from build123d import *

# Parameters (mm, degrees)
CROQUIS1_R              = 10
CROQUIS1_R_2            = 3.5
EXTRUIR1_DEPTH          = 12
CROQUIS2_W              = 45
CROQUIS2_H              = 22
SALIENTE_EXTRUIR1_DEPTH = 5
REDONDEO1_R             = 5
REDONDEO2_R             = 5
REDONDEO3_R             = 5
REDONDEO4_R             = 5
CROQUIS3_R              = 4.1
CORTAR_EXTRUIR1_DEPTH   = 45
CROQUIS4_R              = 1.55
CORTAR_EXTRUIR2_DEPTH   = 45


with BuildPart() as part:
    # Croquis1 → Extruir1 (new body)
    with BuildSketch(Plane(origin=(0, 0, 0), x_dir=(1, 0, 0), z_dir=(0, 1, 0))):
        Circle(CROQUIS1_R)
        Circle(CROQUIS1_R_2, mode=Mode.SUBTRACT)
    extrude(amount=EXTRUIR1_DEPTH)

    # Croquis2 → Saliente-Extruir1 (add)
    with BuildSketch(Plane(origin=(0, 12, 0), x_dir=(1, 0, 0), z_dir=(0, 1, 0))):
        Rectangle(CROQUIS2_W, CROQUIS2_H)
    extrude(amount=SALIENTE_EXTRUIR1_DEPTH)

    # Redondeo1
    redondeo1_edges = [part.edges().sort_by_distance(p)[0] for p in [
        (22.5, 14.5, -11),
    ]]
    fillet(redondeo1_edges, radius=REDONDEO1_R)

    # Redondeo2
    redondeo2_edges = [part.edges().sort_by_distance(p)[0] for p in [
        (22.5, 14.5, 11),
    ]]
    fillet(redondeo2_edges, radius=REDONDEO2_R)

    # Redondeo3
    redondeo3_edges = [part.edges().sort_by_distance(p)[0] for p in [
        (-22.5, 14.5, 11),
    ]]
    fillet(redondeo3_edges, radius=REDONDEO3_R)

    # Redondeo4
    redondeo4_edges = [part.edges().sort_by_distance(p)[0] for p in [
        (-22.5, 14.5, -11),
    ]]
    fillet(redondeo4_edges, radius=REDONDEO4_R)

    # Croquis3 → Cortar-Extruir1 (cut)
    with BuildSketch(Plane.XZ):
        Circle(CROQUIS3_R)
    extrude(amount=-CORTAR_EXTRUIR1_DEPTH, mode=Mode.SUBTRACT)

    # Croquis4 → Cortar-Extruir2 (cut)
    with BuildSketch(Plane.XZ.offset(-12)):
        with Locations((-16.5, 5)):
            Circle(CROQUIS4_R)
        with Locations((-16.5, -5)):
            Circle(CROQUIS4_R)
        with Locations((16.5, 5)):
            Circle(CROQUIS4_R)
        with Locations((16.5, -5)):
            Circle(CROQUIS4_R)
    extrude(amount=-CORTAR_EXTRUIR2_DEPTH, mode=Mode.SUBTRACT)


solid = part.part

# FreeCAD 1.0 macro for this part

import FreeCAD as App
import Part
import Sketcher
from FreeCAD import Vector
Q = App.Units.Quantity


def edges_at(feature, points):
    """Names of the edges that pass closest to the given points."""
    edges = feature.Shape.Edges
    near = lambda p: min(range(len(edges)), key=lambda i: edges[i].distToShape(Part.Vertex(*p))[0])
    return sorted({f"Edge{near(p) + 1}" for p in points})

doc = App.newDocument("Part")
body = doc.addObject("PartDesign::Body", "Body")

# Sketch on XZ plane
sketch1 = body.newObject("Sketcher::SketchObject", "Sketch")
sketch1.AttachmentSupport = (doc.getObject("XZ_Plane"), [""])
sketch1.MapMode = "FlatFace"
sketch1.addGeometry(Part.Circle(Vector(0, 0, 0), Vector(0, 0, 1), 10), False)
sketch1.addGeometry(Part.Circle(Vector(0, 0, 0), Vector(0, 0, 1), 3.5), False)
sketch1.addConstraint(Sketcher.Constraint("Coincident", 0, 3, -1, 1))
sketch1.addConstraint(Sketcher.Constraint("Coincident", 1, 3, -1, 1))
sketch1.addConstraint(Sketcher.Constraint("Diameter", 0, Q("20 mm")))
sketch1.addConstraint(Sketcher.Constraint("Diameter", 1, Q("7 mm")))
pad1 = body.newObject("PartDesign::Pad", "Pad")
pad1.Profile = sketch1
pad1.Length = 12
pad1.Reversed = True

# Sketch on XZ plane
sketch2 = body.newObject("Sketcher::SketchObject", "Sketch001")
sketch2.AttachmentSupport = (doc.getObject("XZ_Plane"), [""])
sketch2.MapMode = "FlatFace"
sketch2.AttachmentOffset = App.Placement(Vector(0, 0, -12), App.Rotation())
sketch2.addGeometry(Part.LineSegment(Vector(-22, -11, 0), Vector(-22, 11, 0)), False)
sketch2.addGeometry(Part.LineSegment(Vector(-22, 11, 0), Vector(22, 11, 0)), False)
sketch2.addGeometry(Part.LineSegment(Vector(22, 11, 0), Vector(22, -11, 0)), False)
sketch2.addGeometry(Part.LineSegment(Vector(22, -11, 0), Vector(-22, -11, 0)), False)
sketch2.addConstraint(Sketcher.Constraint("Coincident", 0, 2, 1, 1))
sketch2.addConstraint(Sketcher.Constraint("Coincident", 1, 2, 2, 1))
sketch2.addConstraint(Sketcher.Constraint("Coincident", 2, 2, 3, 1))
sketch2.addConstraint(Sketcher.Constraint("Coincident", 3, 2, 0, 1))
sketch2.addConstraint(Sketcher.Constraint("Vertical", 0))
sketch2.addConstraint(Sketcher.Constraint("Horizontal", 1))
sketch2.addConstraint(Sketcher.Constraint("Vertical", 2))
sketch2.addConstraint(Sketcher.Constraint("Horizontal", 3))
sketch2.addConstraint(Sketcher.Constraint("Symmetric", 0, 2, 2, 2, -1, 1))
sketch2.addConstraint(Sketcher.Constraint("DistanceX", 1, 1, 1, 2, Q("45 mm")))
sketch2.addConstraint(Sketcher.Constraint("DistanceY", 0, 1, 0, 2, Q("22 mm")))
pad2 = body.newObject("PartDesign::Pad", "Pad001")
pad2.Profile = sketch2
pad2.Length = 5
pad2.Reversed = True
doc.recompute()

fillet = body.newObject("PartDesign::Fillet", "Fillet")
fillet.Base = (pad2, edges_at(pad2, [(22.5, 14.5, -11)]))
fillet.Radius = 5
doc.recompute()

fillet2 = body.newObject("PartDesign::Fillet", "Fillet001")
fillet2.Base = (fillet, edges_at(fillet, [(22.5, 14.5, 11)]))
fillet2.Radius = 5
doc.recompute()

fillet3 = body.newObject("PartDesign::Fillet", "Fillet002")
fillet3.Base = (fillet2, edges_at(fillet2, [(-22.5, 14.5, 11)]))
fillet3.Radius = 5
doc.recompute()

fillet4 = body.newObject("PartDesign::Fillet", "Fillet003")
fillet4.Base = (fillet3, edges_at(fillet3, [(-22.5, 14.5, -11)]))
fillet4.Radius = 5

# Sketch on XZ plane
sketch3 = body.newObject("Sketcher::SketchObject", "Sketch002")
sketch3.AttachmentSupport = (doc.getObject("XZ_Plane"), [""])
sketch3.MapMode = "FlatFace"
sketch3.addGeometry(Part.Circle(Vector(0, 0, 0), Vector(0, 0, 1), 4.1), False)
sketch3.addConstraint(Sketcher.Constraint("Coincident", 0, 3, -1, 1))
sketch3.addConstraint(Sketcher.Constraint("Diameter", 0, Q("8.2 mm")))
pocket1 = body.newObject("PartDesign::Pocket", "Pocket")
pocket1.Profile = sketch3
pocket1.Length = 45

# Sketch on XZ plane
sketch4 = body.newObject("Sketcher::SketchObject", "Sketch003")
sketch4.AttachmentSupport = (doc.getObject("XZ_Plane"), [""])
sketch4.MapMode = "FlatFace"
sketch4.AttachmentOffset = App.Placement(Vector(0, 0, -12), App.Rotation())
sketch4.addGeometry(Part.Circle(Vector(-16.5, 5, 0), Vector(0, 0, 1), 1.6), False)
sketch4.addGeometry(Part.Circle(Vector(-16.5, -5, 0), Vector(0, 0, 1), 1.6), False)
sketch4.addGeometry(Part.Circle(Vector(16.5, 5, 0), Vector(0, 0, 1), 1.6), False)
sketch4.addGeometry(Part.Circle(Vector(16.5, -5, 0), Vector(0, 0, 1), 1.6), False)
sketch4.addConstraint(Sketcher.Constraint("Equal", 0, 1))
sketch4.addConstraint(Sketcher.Constraint("Equal", 1, 2))
sketch4.addConstraint(Sketcher.Constraint("Equal", 2, 3))
sketch4.addConstraint(Sketcher.Constraint("Symmetric", 1, 3, 2, 3, -1, 1))
sketch4.addConstraint(Sketcher.Constraint("Symmetric", 0, 3, 3, 3, -1, 1))
sketch4.addConstraint(Sketcher.Constraint("Symmetric", 0, 3, 2, 3, -2))
sketch4.addConstraint(Sketcher.Constraint("Diameter", 0, Q("3.1 mm")))
sketch4.addConstraint(Sketcher.Constraint("DistanceY", -1, 1, 0, 3, Q("5 mm")))
sketch4.addConstraint(Sketcher.Constraint("DistanceX", 0, 3, 2, 3, Q("33 mm")))
pocket2 = body.newObject("PartDesign::Pocket", "Pocket001")
pocket2.Profile = sketch4
pocket2.Length = 45

doc.recompute()
